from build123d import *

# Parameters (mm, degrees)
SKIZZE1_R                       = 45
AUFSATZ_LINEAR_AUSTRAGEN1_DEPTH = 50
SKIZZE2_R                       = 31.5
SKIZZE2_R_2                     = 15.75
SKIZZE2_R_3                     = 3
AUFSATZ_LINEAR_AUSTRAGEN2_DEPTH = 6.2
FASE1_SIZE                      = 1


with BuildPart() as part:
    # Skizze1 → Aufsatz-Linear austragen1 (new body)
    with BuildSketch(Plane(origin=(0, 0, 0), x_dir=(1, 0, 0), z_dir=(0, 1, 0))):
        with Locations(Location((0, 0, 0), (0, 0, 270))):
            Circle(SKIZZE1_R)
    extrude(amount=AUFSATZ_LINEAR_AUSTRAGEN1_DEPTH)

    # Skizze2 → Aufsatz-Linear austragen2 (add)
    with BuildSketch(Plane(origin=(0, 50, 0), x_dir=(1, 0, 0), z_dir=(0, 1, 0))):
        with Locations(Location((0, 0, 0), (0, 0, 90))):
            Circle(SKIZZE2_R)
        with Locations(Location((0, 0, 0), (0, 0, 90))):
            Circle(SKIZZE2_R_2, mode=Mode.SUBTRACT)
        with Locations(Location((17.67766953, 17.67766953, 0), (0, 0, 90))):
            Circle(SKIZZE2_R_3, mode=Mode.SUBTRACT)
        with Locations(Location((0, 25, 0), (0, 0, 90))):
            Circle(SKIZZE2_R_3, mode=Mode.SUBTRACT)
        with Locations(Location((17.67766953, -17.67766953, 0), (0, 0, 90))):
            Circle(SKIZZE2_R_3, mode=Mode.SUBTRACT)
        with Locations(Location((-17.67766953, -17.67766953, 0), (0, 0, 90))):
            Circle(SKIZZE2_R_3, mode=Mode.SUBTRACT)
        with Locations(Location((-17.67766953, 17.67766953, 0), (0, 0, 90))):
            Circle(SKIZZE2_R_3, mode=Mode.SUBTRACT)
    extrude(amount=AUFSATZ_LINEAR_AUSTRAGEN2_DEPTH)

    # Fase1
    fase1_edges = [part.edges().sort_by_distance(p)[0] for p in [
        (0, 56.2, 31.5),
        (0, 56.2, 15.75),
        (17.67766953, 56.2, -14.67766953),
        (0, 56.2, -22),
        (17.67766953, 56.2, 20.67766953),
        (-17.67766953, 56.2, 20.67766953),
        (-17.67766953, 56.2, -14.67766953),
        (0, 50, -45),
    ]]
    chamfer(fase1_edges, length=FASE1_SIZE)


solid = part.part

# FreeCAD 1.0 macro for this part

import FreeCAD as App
import Part
import Sketcher
Q = App.Units.Quantity


def edges_at(feature, points):
    """Names of the edges that pass closest to the given points."""
    edges = feature.Shape.Edges
    near = lambda p: min(range(len(edges)), key=lambda i: edges[i].distToShape(Part.Vertex(*p))[0])
    return sorted({f"Edge{near(p) + 1}" for p in points})

doc = App.newDocument("Part")
body = doc.addObject("PartDesign::Body", "Body")

# Sketch on XZ plane
sketch1 = body.newObject("Sketcher::SketchObject", "Sketch")
sketch1.AttachmentSupport = (doc.getObject("XZ_Plane"), [""])
sketch1.MapMode = "FlatFace"
sketch1.addGeometry(Part.Circle(App.Vector(0, 0, 0), App.Vector(0, 0, 1), 45), False)
sketch1.addConstraint([
    Sketcher.Constraint("Coincident", 0, 3, -1, 1),
    Sketcher.Constraint("Diameter", 0, Q("90 mm")),
])
pad1 = body.newObject("PartDesign::Pad", "Pad")
pad1.Profile = sketch1
pad1.Length = 50
pad1.Reversed = True

# Sketch on XZ plane
sketch2 = body.newObject("Sketcher::SketchObject", "Sketch001")
sketch2.AttachmentSupport = (doc.getObject("XZ_Plane"), [""])
sketch2.MapMode = "FlatFace"
sketch2.AttachmentOffset = App.Placement(App.Vector(0, 0, -50), App.Rotation())
sketch2.addGeometry([
    Part.Circle(App.Vector(0, 0, 0), App.Vector(0, 0, 1), 31.5),  # 0
    Part.Circle(App.Vector(17.67767, 17.67767, 0), App.Vector(0, 0, 1), 3),  # 1
    Part.Circle(App.Vector(17.67767, -17.67767, 0), App.Vector(0, 0, 1), 3),  # 2
    Part.Circle(App.Vector(0, 0, 0), App.Vector(0, 0, 1), 15.75),  # 3
    Part.Circle(App.Vector(-17.67767, 17.67767, 0), App.Vector(0, 0, 1), 3),  # 4
    Part.Circle(App.Vector(0, -25, 0), App.Vector(0, 0, 1), 3),  # 5
    Part.Circle(App.Vector(-17.67767, -17.67767, 0), App.Vector(0, 0, 1), 3),  # 6
], False)
sketch2.addConstraint([
    Sketcher.Constraint("Coincident", 0, 3, -1, 1),
    Sketcher.Constraint("Coincident", 3, 3, -1, 1),
    Sketcher.Constraint("Equal", 1, 2),
    Sketcher.Constraint("Equal", 2, 4),
    Sketcher.Constraint("Equal", 4, 5),
    Sketcher.Constraint("Equal", 5, 6),
    Sketcher.Constraint("Symmetric", 2, 3, 4, 3, -1, 1),
    Sketcher.Constraint("Symmetric", 1, 3, 6, 3, -1, 1),
    Sketcher.Constraint("Symmetric", 1, 3, 4, 3, -2),
    Sketcher.Constraint("PointOnObject", 5, 3, -2),
    Sketcher.Constraint("Diameter", 0, Q("63 mm")),
    Sketcher.Constraint("Diameter", 1, Q("6 mm")),
    Sketcher.Constraint("Diameter", 3, Q("31.5 mm")),
    Sketcher.Constraint("DistanceY", 5, 3, -1, 1, Q("25 mm")),
    Sketcher.Constraint("DistanceX", -1, 1, 1, 3, Q("17.67767 mm")),
    Sketcher.Constraint("DistanceY", -1, 1, 1, 3, Q("17.67767 mm")),
])
pad2 = body.newObject("PartDesign::Pad", "Pad001")
pad2.Profile = sketch2
pad2.Length = 6.2
pad2.Reversed = True
doc.recompute()

chamfer = body.newObject("PartDesign::Chamfer", "Chamfer")
chamfer.Base = (pad2, edges_at(pad2, [
    (0, 56.2, 31.5),
    (0, 56.2, 15.75),
    (17.678, 56.2, -14.678),
    (0, 56.2, -22),
    (17.678, 56.2, 20.678),
    (-17.678, 56.2, 20.678),
    (-17.678, 56.2, -14.678),
    (0, 50, -45),
]))
chamfer.Size = 1

doc.recompute()
